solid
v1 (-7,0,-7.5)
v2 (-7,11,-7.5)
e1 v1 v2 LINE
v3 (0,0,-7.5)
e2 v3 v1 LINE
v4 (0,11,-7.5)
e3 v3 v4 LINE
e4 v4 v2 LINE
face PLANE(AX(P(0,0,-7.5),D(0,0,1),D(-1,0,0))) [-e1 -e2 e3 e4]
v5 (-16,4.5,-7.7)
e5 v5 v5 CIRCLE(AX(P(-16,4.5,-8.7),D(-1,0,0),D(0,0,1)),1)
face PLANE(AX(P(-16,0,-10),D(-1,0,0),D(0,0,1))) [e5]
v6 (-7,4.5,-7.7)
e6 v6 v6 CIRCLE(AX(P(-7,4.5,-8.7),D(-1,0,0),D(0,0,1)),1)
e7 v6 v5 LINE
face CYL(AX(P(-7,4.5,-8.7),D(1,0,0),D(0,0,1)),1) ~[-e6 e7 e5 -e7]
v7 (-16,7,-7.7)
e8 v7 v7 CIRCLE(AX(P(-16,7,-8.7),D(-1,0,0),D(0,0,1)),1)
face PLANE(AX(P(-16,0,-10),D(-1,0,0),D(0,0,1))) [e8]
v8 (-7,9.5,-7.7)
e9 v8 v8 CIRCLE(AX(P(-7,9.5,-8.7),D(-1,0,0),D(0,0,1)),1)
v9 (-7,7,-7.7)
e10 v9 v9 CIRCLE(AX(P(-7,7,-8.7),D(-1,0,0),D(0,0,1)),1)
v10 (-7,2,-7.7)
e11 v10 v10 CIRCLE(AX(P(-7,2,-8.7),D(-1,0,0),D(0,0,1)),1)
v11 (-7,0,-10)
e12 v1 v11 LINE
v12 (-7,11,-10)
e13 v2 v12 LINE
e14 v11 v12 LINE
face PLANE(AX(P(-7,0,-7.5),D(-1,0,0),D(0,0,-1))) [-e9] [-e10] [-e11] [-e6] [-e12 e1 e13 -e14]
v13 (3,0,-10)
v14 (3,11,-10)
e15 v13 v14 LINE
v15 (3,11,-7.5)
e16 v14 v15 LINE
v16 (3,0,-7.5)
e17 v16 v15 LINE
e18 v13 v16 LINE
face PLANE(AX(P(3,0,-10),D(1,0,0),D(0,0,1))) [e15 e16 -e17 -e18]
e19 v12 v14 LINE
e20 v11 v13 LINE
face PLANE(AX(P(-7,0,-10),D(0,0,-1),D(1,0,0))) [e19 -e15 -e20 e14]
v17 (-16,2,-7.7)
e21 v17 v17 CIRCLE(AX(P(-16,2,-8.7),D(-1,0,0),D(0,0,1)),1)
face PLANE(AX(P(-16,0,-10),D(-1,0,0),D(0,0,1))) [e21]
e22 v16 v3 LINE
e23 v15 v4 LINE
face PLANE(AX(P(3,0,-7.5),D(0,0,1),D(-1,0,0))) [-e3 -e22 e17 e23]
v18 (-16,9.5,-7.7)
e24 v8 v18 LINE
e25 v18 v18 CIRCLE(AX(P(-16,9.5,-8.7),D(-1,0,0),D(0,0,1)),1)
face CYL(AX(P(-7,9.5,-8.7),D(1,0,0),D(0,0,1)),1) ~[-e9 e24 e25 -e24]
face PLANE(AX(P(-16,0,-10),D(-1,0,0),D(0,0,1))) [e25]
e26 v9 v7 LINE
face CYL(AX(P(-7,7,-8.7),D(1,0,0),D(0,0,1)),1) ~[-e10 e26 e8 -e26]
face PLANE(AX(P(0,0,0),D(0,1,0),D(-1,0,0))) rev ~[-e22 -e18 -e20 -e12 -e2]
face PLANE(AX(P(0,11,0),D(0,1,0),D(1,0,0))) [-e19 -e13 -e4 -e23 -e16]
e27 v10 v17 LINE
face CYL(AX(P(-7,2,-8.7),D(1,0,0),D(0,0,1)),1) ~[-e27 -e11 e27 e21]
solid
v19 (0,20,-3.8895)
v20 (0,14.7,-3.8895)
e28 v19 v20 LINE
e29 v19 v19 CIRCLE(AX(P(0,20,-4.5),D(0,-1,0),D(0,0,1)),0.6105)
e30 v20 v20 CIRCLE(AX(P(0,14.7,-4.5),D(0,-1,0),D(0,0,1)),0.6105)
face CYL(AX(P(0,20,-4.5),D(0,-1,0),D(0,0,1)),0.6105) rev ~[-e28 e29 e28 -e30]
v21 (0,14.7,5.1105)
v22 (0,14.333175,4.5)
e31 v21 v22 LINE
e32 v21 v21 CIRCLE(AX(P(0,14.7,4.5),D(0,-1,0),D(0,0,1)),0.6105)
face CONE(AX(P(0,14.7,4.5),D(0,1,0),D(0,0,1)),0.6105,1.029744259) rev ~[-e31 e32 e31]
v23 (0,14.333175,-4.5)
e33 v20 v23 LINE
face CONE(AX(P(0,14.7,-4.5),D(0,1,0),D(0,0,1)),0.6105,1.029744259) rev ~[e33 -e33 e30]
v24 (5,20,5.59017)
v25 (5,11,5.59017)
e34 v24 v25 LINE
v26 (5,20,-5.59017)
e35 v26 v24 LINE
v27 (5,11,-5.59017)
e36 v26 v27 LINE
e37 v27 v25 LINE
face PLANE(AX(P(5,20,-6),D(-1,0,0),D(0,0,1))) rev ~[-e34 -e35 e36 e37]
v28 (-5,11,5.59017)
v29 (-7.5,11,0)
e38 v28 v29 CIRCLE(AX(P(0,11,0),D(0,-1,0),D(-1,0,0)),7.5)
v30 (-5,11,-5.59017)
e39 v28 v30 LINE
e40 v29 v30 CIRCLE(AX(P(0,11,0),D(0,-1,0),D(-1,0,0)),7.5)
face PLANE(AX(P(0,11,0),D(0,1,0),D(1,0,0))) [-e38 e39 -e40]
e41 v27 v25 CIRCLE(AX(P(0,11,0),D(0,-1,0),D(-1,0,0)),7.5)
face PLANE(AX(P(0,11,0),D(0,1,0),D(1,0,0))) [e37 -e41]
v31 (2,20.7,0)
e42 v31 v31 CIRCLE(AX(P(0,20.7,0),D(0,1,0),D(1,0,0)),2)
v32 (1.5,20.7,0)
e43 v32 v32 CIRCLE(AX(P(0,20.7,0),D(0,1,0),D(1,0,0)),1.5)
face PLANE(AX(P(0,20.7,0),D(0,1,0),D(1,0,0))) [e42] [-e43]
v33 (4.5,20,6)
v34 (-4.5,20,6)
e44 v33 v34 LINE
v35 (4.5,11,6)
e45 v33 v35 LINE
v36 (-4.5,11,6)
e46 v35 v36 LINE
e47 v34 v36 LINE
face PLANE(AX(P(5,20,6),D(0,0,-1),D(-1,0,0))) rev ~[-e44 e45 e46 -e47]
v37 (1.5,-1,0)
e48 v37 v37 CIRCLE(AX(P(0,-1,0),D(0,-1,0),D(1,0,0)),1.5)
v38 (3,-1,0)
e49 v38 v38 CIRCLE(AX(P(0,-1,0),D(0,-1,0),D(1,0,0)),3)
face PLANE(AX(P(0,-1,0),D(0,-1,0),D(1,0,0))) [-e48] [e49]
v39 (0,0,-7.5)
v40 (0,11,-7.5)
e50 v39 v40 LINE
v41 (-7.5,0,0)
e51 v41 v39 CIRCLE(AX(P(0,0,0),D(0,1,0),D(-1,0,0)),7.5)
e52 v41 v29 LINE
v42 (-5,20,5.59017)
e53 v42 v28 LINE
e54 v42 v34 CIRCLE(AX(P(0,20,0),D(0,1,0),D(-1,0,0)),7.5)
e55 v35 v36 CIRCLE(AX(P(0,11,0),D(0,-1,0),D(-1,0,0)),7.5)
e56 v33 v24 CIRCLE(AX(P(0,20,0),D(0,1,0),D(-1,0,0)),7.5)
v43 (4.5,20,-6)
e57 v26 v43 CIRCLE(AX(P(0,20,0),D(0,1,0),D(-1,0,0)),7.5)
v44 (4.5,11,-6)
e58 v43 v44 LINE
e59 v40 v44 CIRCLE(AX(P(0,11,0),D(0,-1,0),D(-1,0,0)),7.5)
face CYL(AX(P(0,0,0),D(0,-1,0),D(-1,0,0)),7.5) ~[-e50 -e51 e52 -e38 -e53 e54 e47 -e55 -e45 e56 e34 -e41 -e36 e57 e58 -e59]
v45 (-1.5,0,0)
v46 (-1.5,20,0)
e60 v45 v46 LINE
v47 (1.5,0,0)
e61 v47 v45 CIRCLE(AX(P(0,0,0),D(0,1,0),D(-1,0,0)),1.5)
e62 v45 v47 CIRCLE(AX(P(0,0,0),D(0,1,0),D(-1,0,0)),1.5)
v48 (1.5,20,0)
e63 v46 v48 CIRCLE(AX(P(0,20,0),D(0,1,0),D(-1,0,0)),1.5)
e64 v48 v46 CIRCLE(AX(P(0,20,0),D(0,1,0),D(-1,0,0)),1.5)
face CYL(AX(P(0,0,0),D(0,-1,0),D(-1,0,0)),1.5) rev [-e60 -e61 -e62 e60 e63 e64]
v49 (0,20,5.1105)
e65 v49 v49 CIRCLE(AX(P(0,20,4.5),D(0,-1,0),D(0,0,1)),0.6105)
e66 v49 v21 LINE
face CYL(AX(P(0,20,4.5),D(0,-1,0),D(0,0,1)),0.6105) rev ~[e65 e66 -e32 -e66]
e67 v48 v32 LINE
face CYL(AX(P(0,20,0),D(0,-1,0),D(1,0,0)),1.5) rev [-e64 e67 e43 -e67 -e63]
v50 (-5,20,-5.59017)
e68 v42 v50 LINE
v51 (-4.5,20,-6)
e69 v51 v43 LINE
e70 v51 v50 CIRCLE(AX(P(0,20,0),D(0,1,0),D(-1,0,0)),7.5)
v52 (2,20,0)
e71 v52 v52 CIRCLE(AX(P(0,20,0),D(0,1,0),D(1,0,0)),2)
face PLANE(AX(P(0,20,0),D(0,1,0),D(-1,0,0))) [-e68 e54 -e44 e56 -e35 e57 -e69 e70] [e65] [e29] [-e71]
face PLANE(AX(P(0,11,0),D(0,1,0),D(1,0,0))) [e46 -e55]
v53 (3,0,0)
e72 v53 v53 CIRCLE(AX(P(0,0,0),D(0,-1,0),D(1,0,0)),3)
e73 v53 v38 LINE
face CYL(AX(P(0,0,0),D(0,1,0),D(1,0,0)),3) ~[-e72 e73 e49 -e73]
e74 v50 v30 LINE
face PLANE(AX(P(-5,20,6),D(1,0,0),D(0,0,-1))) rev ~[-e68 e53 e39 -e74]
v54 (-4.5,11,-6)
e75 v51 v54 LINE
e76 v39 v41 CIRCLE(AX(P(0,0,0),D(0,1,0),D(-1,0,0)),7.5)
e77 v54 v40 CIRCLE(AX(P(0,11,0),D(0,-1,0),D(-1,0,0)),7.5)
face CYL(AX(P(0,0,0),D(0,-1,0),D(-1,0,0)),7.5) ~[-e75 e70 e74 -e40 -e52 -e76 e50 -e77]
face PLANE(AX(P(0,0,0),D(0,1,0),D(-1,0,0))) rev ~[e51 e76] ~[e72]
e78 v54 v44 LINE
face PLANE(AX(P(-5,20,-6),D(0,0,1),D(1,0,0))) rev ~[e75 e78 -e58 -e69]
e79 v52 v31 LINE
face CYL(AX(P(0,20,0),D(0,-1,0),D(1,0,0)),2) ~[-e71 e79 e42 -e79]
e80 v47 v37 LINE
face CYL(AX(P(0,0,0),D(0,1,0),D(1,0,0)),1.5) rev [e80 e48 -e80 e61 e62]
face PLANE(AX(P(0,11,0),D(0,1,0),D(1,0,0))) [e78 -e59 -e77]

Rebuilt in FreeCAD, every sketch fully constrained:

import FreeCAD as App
import Part
import Sketcher

V = App.Vector
Q = App.Units.Quantity


def add_polygon(sketch, points):
    """Adds a closed chain of lines whose ends are joined by coincident constraints."""
    first, n = sketch.GeometryCount, len(points)
    for a, b in zip(points, points[1:] + points[:1]):
        sketch.addGeometry(Part.LineSegment(App.Vector(*a, 0), App.Vector(*b, 0)), False)
    for i in range(n):
        sketch.addConstraint(Sketcher.Constraint("Coincident", first + i, 2, first + (i + 1) % n, 1))

doc = App.newDocument("Part")
body = doc.addObject("PartDesign::Body", "Body")
body.AllowCompound = True

# Sketch on XZ plane
sketch1 = body.newObject("Sketcher::SketchObject", "Sketch")
sketch1.AttachmentSupport = (doc.getObject("XZ_Plane"), [""])
sketch1.MapMode = "FlatFace"
sketch1.addGeometry(Part.Circle(V(0, 0, 0), V(0, 0, 1), 7.5), False)  # 0
sketch1.addGeometry(Part.Circle(V(0, 0, 0), V(0, 0, 1), 1.5), False)  # 1
add_polygon(sketch1, [(-7, -7.5), (0, -7.5), (3, -7.5), (3, -10), (-7, -10)])  # lines 2-6
sketch1.addConstraint(Sketcher.Constraint("Horizontal", 2))
sketch1.addConstraint(Sketcher.Constraint("Horizontal", 3))
sketch1.addConstraint(Sketcher.Constraint("Vertical", 4))
sketch1.addConstraint(Sketcher.Constraint("Horizontal", 5))
sketch1.addConstraint(Sketcher.Constraint("Vertical", 6))
sketch1.addConstraint(Sketcher.Constraint("Coincident", 0, 3, -1, 1))
sketch1.addConstraint(Sketcher.Constraint("Coincident", 1, 3, -1, 1))
sketch1.addConstraint(Sketcher.Constraint("PointOnObject", 2, 2, -2))
sketch1.addConstraint(Sketcher.Constraint("Diameter", 0, Q("15 mm")))
sketch1.addConstraint(Sketcher.Constraint("Diameter", 1, Q("3 mm")))
sketch1.addConstraint(Sketcher.Constraint("DistanceX", 3, 1, 3, 2, Q("3 mm")))
sketch1.addConstraint(Sketcher.Constraint("DistanceX", 5, 2, 5, 1, Q("10 mm")))
sketch1.addConstraint(Sketcher.Constraint("DistanceY", 4, 2, -1, 1, Q("10 mm")))
sketch1.addConstraint(Sketcher.Constraint("DistanceY", 4, 2, 4, 1, Q("2.5 mm")))
pad1 = body.newObject("PartDesign::Pad", "Pad")
pad1.Profile = sketch1
pad1.Length = 20
pad1.Reversed = True

# Sketch on XZ plane
sketch2 = body.newObject("Sketcher::SketchObject", "Sketch001")
sketch2.AttachmentSupport = (doc.getObject("XZ_Plane"), [""])
sketch2.MapMode = "FlatFace"
sketch2.AttachmentOffset = App.Placement(V(0, 0, -20), App.Rotation())
add_polygon(sketch2, [(-15, 15), (15, 15), (15, -15), (-15, -15)])  # lines 0-3
add_polygon(sketch2, [(5, -6), (5, 6), (-5, 6), (-5, -6)])  # lines 4-7
sketch2.addConstraint(Sketcher.Constraint("Horizontal", 0))
sketch2.addConstraint(Sketcher.Constraint("Vertical", 1))
sketch2.addConstraint(Sketcher.Constraint("Horizontal", 2))
sketch2.addConstraint(Sketcher.Constraint("Vertical", 3))
sketch2.addConstraint(Sketcher.Constraint("Vertical", 4))
sketch2.addConstraint(Sketcher.Constraint("Horizontal", 5))
sketch2.addConstraint(Sketcher.Constraint("Vertical", 6))
sketch2.addConstraint(Sketcher.Constraint("Horizontal", 7))
sketch2.addConstraint(Sketcher.Constraint("Symmetric", 0, 2, 2, 2, -1, 1))
sketch2.addConstraint(Sketcher.Constraint("Symmetric", 4, 2, 6, 2, -1, 1))
sketch2.addConstraint(Sketcher.Constraint("Equal", 2, 1))
sketch2.addConstraint(Sketcher.Constraint("DistanceX", 0, 1, 0, 2, Q("30 mm")))
sketch2.addConstraint(Sketcher.Constraint("DistanceX", 5, 2, 5, 1, Q("10 mm")))
sketch2.addConstraint(Sketcher.Constraint("DistanceY", 4, 1, 4, 2, Q("12 mm")))
pocket1 = body.newObject("PartDesign::Pocket", "Pocket")
pocket1.Profile = sketch2
pocket1.Length = 9
pocket1.Reversed = True

# Sketch on YZ plane
sketch3 = body.newObject("Sketcher::SketchObject", "Sketch002")
sketch3.AttachmentSupport = (doc.getObject("YZ_Plane"), [""])
sketch3.MapMode = "FlatFace"
sketch3.AttachmentOffset = App.Placement(V(0, 0, -7), App.Rotation())
sketch3.addGeometry(Part.Circle(V(9.5, -8.7, 0), V(0, 0, 1), 1), False)
sketch3.addGeometry(Part.Circle(V(7, -8.7, 0), V(0, 0, 1), 1), False)
sketch3.addGeometry(Part.Circle(V(4.5, -8.7, 0), V(0, 0, 1), 1), False)
sketch3.addGeometry(Part.Circle(V(2, -8.7, 0), V(0, 0, 1), 1), False)
sketch3.addConstraint(Sketcher.Constraint("Equal", 0, 1))
sketch3.addConstraint(Sketcher.Constraint("Equal", 1, 2))
sketch3.addConstraint(Sketcher.Constraint("Equal", 2, 3))
sketch3.addConstraint(Sketcher.Constraint("Horizontal", 0, 3, 1, 3))
sketch3.addConstraint(Sketcher.Constraint("Horizontal", 1, 3, 2, 3))
sketch3.addConstraint(Sketcher.Constraint("Horizontal", 2, 3, 3, 3))
sketch3.addConstraint(Sketcher.Constraint("Diameter", 0, Q("2 mm")))
sketch3.addConstraint(Sketcher.Constraint("DistanceX", -1, 1, 3, 3, Q("2 mm")))
sketch3.addConstraint(Sketcher.Constraint("DistanceX", 1, 3, 0, 3, Q("2.5 mm")))
sketch3.addConstraint(Sketcher.Constraint("DistanceX", 2, 3, 1, 3, Q("2.5 mm")))
sketch3.addConstraint(Sketcher.Constraint("DistanceX", 3, 3, 2, 3, Q("2.5 mm")))
sketch3.addConstraint(Sketcher.Constraint("DistanceY", 0, 3, -1, 1, Q("8.7 mm")))
pad2 = body.newObject("PartDesign::Pad", "Pad001")
pad2.Profile = sketch3
pad2.Length = 9
pad2.Reversed = True

# Sketch on XZ plane
sketch4 = body.newObject("Sketcher::SketchObject", "Sketch003")
sketch4.AttachmentSupport = (doc.getObject("XZ_Plane"), [""])
sketch4.MapMode = "FlatFace"
sketch4.AttachmentOffset = App.Placement(V(0, 0, -20), App.Rotation())
sketch4.addGeometry(Part.Circle(V(0, 4.5, 0), V(0, 0, 1), 0.6), False)
sketch4.addGeometry(Part.Circle(V(0, -4.5, 0), V(0, 0, 1), 0.6), False)
sketch4.addConstraint(Sketcher.Constraint("Equal", 0, 1))
sketch4.addConstraint(Sketcher.Constraint("Symmetric", 0, 3, 1, 3, -1, 1))
sketch4.addConstraint(Sketcher.Constraint("PointOnObject", 0, 3, -2))
sketch4.addConstraint(Sketcher.Constraint("Diameter", 0, Q("1.221 mm")))
sketch4.addConstraint(Sketcher.Constraint("DistanceY", 1, 3, 0, 3, Q("9 mm")))
doc.recompute()
hole = body.newObject("PartDesign::Hole", "Hole")
hole.Profile = sketch4
hole.ThreadType = "None"
hole.Diameter = 1.221
hole.DepthType = "Dimension"
hole.Depth = 5.3
hole.DrillPoint = "Angled"
hole.DrillPointAngle = 118
hole.Reversed = True

# Sketch on XZ plane
sketch5 = body.newObject("Sketcher::SketchObject", "Sketch004")
sketch5.AttachmentSupport = (doc.getObject("XZ_Plane"), [""])
sketch5.MapMode = "FlatFace"
sketch5.addGeometry(Part.Circle(V(0, 0, 0), V(0, 0, 1), 3), False)
sketch5.addGeometry(Part.Circle(V(0, 0, 0), V(0, 0, 1), 1.5), False)
sketch5.addConstraint(Sketcher.Constraint("Coincident", 0, 3, -1, 1))
sketch5.addConstraint(Sketcher.Constraint("Coincident", 1, 3, -1, 1))
sketch5.addConstraint(Sketcher.Constraint("Diameter", 0, Q("6 mm")))
sketch5.addConstraint(Sketcher.Constraint("Diameter", 1, Q("3 mm")))
pad3 = body.newObject("PartDesign::Pad", "Pad002")
pad3.Profile = sketch5
pad3.Length = 1

# Sketch on XZ plane
sketch6 = body.newObject("Sketcher::SketchObject", "Sketch005")
sketch6.AttachmentSupport = (doc.getObject("XZ_Plane"), [""])
sketch6.MapMode = "FlatFace"
sketch6.AttachmentOffset = App.Placement(V(0, 0, -20), App.Rotation())
sketch6.addGeometry(Part.Circle(V(0, 0, 0), V(0, 0, 1), 2), False)
sketch6.addGeometry(Part.Circle(V(0, 0, 0), V(0, 0, 1), 1.5), False)
sketch6.addConstraint(Sketcher.Constraint("Coincident", 0, 3, -1, 1))
sketch6.addConstraint(Sketcher.Constraint("Coincident", 1, 3, -1, 1))
sketch6.addConstraint(Sketcher.Constraint("Diameter", 0, Q("4 mm")))
sketch6.addConstraint(Sketcher.Constraint("Diameter", 1, Q("3 mm")))
pad4 = body.newObject("PartDesign::Pad", "Pad003")
pad4.Profile = sketch6
pad4.Length = 0.7
pad4.Reversed = True

doc.recompute()
